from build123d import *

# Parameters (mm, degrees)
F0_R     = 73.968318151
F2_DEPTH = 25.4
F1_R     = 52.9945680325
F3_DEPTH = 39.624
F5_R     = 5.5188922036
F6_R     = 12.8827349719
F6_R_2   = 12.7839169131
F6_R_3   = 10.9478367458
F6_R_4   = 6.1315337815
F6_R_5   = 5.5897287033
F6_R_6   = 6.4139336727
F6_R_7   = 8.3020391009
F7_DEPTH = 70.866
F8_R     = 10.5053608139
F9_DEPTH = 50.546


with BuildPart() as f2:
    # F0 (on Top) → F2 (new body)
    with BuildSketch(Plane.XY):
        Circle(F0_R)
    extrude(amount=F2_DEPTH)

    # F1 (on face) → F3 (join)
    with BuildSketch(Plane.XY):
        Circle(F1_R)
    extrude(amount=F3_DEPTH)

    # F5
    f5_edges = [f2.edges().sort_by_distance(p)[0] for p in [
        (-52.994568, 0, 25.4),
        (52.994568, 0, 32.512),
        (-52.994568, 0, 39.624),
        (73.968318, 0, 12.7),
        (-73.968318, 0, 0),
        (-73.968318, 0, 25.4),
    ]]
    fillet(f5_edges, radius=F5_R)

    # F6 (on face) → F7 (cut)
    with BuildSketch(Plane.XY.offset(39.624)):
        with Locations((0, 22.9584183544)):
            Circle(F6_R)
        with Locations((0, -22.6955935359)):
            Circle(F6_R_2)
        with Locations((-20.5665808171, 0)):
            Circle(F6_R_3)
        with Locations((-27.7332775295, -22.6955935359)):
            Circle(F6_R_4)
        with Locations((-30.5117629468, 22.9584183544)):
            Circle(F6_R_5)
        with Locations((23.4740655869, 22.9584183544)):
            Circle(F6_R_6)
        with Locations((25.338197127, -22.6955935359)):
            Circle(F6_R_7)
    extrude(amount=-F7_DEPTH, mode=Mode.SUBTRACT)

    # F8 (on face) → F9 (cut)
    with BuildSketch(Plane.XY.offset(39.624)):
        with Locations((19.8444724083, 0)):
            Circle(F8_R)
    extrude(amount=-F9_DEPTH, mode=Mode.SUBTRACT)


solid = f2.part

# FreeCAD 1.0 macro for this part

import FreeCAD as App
import Part
import Sketcher
from FreeCAD import Vector
Q = App.Units.Quantity

doc = App.newDocument("Part")
body = doc.addObject("PartDesign::Body", "Body")

sketch1 = doc.addObject("Sketcher::SketchObject", "Sketch")
body.addObject(sketch1)
sketch1.AttachmentSupport = (doc.XY_Plane, [""])
sketch1.MapMode = "FlatFace"
sketch1.addGeometry(Part.Circle(Vector(0, 0, 0), Vector(0, 0, 1), 74), False)
sketch1.addConstraint([
    Sketcher.Constraint("Coincident", 0, 3, -1, 1),
    Sketcher.Constraint("Diameter", 0, 147.936636),
])
pad1 = doc.addObject("PartDesign::Pad", "Pad")
body.addObject(pad1)
pad1.Profile = sketch1
pad1.Length = Q("1 in")

sketch2 = doc.addObject("Sketcher::SketchObject", "Sketch001")
body.addObject(sketch2)
sketch2.AttachmentSupport = (doc.XY_Plane, [""])
sketch2.MapMode = "FlatFace"
sketch2.addGeometry(Part.Circle(Vector(0, 0, 0), Vector(0, 0, 1), 53), False)
sketch2.addConstraint([
    Sketcher.Constraint("Coincident", 0, 3, -1, 1),
    Sketcher.Constraint("Diameter", 0, 105.989136),
])
pad2 = doc.addObject("PartDesign::Pad", "Pad001")
body.addObject(pad2)
pad2.Profile = sketch2
pad2.Length = Q("1.56 in")
doc.recompute()

fillet = doc.addObject("PartDesign::Fillet", "Fillet")
body.addObject(fillet)
fillet.Base = (pad2, ["Edge1"])
fillet.UseAllEdges = True
fillet.Radius = 5.518892

sketch3 = doc.addObject("Sketcher::SketchObject", "Sketch002")
body.addObject(sketch3)
sketch3.AttachmentSupport = (doc.XY_Plane, [""])
sketch3.MapMode = "FlatFace"
sketch3.AttachmentOffset = App.Placement(Vector(0, 0, 1.56 * 25.4), App.Rotation())
sketch3.addGeometry([
    Part.Circle(Vector(0, 23, 0), Vector(0, 0, 1), 13),
    Part.Circle(Vector(0, -23, 0), Vector(0, 0, 1), 13),
    Part.Circle(Vector(-21, 0, 0), Vector(0, 0, 1), 11),
    Part.Circle(Vector(-28, -23, 0), Vector(0, 0, 1), 6),
    Part.Circle(Vector(-31, 23, 0), Vector(0, 0, 1), 6),
    Part.Circle(Vector(23, 23, 0), Vector(0, 0, 1), 6),
    Part.Circle(Vector(25, -23, 0), Vector(0, 0, 1), 8),
], False)
sketch3.addConstraint([
    Sketcher.Constraint("PointOnObject", 0, 3, -2),
    Sketcher.Constraint("PointOnObject", 1, 3, -2),
    Sketcher.Constraint("PointOnObject", 2, 3, -1),
    Sketcher.Constraint("Horizontal", 1, 3, 3, 3),
    Sketcher.Constraint("Horizontal", 0, 3, 4, 3),
    Sketcher.Constraint("Horizontal", 4, 3, 5, 3),
    Sketcher.Constraint("Horizontal", 3, 3, 6, 3),
    Sketcher.Constraint("Diameter", 0, 25.76547),
    Sketcher.Constraint("Diameter", 6, 16.604078),
    Sketcher.Constraint("Diameter", 1, 25.567834),
    Sketcher.Constraint("Diameter", 2, 21.895673),
    Sketcher.Constraint("Diameter", 3, 12.263068),
    Sketcher.Constraint("Diameter", 4, 11.179457),
    Sketcher.Constraint("Diameter", 5, 12.827867),
    Sketcher.Constraint("DistanceY", -1, 1, 0, 3, 22.958418),
    Sketcher.Constraint("DistanceX", 2, 3, -1, 1, 20.566581),
    Sketcher.Constraint("DistanceY", 1, 3, 0, 3, 45.654012),
    Sketcher.Constraint("DistanceX", 4, 3, 5, 3, 53.985829),
    Sketcher.Constraint("DistanceX", 5, 3, 6, 3, 1.864132),
    Sketcher.Constraint("DistanceX", 3, 3, -1, 1, 27.733278),
    Sketcher.Constraint("DistanceX", 4, 3, -1, 1, 30.511763),
])
pocket1 = doc.addObject("PartDesign::Pocket", "Pocket")
body.addObject(pocket1)
pocket1.Profile = sketch3
pocket1.Length = Q("2.79 in")

sketch4 = doc.addObject("Sketcher::SketchObject", "Sketch003")
body.addObject(sketch4)
sketch4.AttachmentSupport = (doc.XY_Plane, [""])
sketch4.MapMode = "FlatFace"
sketch4.AttachmentOffset = App.Placement(Vector(0, 0, 1.56 * 25.4), App.Rotation())
sketch4.addGeometry(Part.Circle(Vector(20, 0, 0), Vector(0, 0, 1), 11), False)
sketch4.addConstraint([
    Sketcher.Constraint("PointOnObject", 0, 3, -1),
    Sketcher.Constraint("Diameter", 0, 21.010722),
    Sketcher.Constraint("DistanceX", -1, 1, 0, 3, 19.844472),
])
pocket2 = doc.addObject("PartDesign::Pocket", "Pocket001")
body.addObject(pocket2)
pocket2.Profile = sketch4
pocket2.Length = Q("1.99 in")

doc.recompute()
